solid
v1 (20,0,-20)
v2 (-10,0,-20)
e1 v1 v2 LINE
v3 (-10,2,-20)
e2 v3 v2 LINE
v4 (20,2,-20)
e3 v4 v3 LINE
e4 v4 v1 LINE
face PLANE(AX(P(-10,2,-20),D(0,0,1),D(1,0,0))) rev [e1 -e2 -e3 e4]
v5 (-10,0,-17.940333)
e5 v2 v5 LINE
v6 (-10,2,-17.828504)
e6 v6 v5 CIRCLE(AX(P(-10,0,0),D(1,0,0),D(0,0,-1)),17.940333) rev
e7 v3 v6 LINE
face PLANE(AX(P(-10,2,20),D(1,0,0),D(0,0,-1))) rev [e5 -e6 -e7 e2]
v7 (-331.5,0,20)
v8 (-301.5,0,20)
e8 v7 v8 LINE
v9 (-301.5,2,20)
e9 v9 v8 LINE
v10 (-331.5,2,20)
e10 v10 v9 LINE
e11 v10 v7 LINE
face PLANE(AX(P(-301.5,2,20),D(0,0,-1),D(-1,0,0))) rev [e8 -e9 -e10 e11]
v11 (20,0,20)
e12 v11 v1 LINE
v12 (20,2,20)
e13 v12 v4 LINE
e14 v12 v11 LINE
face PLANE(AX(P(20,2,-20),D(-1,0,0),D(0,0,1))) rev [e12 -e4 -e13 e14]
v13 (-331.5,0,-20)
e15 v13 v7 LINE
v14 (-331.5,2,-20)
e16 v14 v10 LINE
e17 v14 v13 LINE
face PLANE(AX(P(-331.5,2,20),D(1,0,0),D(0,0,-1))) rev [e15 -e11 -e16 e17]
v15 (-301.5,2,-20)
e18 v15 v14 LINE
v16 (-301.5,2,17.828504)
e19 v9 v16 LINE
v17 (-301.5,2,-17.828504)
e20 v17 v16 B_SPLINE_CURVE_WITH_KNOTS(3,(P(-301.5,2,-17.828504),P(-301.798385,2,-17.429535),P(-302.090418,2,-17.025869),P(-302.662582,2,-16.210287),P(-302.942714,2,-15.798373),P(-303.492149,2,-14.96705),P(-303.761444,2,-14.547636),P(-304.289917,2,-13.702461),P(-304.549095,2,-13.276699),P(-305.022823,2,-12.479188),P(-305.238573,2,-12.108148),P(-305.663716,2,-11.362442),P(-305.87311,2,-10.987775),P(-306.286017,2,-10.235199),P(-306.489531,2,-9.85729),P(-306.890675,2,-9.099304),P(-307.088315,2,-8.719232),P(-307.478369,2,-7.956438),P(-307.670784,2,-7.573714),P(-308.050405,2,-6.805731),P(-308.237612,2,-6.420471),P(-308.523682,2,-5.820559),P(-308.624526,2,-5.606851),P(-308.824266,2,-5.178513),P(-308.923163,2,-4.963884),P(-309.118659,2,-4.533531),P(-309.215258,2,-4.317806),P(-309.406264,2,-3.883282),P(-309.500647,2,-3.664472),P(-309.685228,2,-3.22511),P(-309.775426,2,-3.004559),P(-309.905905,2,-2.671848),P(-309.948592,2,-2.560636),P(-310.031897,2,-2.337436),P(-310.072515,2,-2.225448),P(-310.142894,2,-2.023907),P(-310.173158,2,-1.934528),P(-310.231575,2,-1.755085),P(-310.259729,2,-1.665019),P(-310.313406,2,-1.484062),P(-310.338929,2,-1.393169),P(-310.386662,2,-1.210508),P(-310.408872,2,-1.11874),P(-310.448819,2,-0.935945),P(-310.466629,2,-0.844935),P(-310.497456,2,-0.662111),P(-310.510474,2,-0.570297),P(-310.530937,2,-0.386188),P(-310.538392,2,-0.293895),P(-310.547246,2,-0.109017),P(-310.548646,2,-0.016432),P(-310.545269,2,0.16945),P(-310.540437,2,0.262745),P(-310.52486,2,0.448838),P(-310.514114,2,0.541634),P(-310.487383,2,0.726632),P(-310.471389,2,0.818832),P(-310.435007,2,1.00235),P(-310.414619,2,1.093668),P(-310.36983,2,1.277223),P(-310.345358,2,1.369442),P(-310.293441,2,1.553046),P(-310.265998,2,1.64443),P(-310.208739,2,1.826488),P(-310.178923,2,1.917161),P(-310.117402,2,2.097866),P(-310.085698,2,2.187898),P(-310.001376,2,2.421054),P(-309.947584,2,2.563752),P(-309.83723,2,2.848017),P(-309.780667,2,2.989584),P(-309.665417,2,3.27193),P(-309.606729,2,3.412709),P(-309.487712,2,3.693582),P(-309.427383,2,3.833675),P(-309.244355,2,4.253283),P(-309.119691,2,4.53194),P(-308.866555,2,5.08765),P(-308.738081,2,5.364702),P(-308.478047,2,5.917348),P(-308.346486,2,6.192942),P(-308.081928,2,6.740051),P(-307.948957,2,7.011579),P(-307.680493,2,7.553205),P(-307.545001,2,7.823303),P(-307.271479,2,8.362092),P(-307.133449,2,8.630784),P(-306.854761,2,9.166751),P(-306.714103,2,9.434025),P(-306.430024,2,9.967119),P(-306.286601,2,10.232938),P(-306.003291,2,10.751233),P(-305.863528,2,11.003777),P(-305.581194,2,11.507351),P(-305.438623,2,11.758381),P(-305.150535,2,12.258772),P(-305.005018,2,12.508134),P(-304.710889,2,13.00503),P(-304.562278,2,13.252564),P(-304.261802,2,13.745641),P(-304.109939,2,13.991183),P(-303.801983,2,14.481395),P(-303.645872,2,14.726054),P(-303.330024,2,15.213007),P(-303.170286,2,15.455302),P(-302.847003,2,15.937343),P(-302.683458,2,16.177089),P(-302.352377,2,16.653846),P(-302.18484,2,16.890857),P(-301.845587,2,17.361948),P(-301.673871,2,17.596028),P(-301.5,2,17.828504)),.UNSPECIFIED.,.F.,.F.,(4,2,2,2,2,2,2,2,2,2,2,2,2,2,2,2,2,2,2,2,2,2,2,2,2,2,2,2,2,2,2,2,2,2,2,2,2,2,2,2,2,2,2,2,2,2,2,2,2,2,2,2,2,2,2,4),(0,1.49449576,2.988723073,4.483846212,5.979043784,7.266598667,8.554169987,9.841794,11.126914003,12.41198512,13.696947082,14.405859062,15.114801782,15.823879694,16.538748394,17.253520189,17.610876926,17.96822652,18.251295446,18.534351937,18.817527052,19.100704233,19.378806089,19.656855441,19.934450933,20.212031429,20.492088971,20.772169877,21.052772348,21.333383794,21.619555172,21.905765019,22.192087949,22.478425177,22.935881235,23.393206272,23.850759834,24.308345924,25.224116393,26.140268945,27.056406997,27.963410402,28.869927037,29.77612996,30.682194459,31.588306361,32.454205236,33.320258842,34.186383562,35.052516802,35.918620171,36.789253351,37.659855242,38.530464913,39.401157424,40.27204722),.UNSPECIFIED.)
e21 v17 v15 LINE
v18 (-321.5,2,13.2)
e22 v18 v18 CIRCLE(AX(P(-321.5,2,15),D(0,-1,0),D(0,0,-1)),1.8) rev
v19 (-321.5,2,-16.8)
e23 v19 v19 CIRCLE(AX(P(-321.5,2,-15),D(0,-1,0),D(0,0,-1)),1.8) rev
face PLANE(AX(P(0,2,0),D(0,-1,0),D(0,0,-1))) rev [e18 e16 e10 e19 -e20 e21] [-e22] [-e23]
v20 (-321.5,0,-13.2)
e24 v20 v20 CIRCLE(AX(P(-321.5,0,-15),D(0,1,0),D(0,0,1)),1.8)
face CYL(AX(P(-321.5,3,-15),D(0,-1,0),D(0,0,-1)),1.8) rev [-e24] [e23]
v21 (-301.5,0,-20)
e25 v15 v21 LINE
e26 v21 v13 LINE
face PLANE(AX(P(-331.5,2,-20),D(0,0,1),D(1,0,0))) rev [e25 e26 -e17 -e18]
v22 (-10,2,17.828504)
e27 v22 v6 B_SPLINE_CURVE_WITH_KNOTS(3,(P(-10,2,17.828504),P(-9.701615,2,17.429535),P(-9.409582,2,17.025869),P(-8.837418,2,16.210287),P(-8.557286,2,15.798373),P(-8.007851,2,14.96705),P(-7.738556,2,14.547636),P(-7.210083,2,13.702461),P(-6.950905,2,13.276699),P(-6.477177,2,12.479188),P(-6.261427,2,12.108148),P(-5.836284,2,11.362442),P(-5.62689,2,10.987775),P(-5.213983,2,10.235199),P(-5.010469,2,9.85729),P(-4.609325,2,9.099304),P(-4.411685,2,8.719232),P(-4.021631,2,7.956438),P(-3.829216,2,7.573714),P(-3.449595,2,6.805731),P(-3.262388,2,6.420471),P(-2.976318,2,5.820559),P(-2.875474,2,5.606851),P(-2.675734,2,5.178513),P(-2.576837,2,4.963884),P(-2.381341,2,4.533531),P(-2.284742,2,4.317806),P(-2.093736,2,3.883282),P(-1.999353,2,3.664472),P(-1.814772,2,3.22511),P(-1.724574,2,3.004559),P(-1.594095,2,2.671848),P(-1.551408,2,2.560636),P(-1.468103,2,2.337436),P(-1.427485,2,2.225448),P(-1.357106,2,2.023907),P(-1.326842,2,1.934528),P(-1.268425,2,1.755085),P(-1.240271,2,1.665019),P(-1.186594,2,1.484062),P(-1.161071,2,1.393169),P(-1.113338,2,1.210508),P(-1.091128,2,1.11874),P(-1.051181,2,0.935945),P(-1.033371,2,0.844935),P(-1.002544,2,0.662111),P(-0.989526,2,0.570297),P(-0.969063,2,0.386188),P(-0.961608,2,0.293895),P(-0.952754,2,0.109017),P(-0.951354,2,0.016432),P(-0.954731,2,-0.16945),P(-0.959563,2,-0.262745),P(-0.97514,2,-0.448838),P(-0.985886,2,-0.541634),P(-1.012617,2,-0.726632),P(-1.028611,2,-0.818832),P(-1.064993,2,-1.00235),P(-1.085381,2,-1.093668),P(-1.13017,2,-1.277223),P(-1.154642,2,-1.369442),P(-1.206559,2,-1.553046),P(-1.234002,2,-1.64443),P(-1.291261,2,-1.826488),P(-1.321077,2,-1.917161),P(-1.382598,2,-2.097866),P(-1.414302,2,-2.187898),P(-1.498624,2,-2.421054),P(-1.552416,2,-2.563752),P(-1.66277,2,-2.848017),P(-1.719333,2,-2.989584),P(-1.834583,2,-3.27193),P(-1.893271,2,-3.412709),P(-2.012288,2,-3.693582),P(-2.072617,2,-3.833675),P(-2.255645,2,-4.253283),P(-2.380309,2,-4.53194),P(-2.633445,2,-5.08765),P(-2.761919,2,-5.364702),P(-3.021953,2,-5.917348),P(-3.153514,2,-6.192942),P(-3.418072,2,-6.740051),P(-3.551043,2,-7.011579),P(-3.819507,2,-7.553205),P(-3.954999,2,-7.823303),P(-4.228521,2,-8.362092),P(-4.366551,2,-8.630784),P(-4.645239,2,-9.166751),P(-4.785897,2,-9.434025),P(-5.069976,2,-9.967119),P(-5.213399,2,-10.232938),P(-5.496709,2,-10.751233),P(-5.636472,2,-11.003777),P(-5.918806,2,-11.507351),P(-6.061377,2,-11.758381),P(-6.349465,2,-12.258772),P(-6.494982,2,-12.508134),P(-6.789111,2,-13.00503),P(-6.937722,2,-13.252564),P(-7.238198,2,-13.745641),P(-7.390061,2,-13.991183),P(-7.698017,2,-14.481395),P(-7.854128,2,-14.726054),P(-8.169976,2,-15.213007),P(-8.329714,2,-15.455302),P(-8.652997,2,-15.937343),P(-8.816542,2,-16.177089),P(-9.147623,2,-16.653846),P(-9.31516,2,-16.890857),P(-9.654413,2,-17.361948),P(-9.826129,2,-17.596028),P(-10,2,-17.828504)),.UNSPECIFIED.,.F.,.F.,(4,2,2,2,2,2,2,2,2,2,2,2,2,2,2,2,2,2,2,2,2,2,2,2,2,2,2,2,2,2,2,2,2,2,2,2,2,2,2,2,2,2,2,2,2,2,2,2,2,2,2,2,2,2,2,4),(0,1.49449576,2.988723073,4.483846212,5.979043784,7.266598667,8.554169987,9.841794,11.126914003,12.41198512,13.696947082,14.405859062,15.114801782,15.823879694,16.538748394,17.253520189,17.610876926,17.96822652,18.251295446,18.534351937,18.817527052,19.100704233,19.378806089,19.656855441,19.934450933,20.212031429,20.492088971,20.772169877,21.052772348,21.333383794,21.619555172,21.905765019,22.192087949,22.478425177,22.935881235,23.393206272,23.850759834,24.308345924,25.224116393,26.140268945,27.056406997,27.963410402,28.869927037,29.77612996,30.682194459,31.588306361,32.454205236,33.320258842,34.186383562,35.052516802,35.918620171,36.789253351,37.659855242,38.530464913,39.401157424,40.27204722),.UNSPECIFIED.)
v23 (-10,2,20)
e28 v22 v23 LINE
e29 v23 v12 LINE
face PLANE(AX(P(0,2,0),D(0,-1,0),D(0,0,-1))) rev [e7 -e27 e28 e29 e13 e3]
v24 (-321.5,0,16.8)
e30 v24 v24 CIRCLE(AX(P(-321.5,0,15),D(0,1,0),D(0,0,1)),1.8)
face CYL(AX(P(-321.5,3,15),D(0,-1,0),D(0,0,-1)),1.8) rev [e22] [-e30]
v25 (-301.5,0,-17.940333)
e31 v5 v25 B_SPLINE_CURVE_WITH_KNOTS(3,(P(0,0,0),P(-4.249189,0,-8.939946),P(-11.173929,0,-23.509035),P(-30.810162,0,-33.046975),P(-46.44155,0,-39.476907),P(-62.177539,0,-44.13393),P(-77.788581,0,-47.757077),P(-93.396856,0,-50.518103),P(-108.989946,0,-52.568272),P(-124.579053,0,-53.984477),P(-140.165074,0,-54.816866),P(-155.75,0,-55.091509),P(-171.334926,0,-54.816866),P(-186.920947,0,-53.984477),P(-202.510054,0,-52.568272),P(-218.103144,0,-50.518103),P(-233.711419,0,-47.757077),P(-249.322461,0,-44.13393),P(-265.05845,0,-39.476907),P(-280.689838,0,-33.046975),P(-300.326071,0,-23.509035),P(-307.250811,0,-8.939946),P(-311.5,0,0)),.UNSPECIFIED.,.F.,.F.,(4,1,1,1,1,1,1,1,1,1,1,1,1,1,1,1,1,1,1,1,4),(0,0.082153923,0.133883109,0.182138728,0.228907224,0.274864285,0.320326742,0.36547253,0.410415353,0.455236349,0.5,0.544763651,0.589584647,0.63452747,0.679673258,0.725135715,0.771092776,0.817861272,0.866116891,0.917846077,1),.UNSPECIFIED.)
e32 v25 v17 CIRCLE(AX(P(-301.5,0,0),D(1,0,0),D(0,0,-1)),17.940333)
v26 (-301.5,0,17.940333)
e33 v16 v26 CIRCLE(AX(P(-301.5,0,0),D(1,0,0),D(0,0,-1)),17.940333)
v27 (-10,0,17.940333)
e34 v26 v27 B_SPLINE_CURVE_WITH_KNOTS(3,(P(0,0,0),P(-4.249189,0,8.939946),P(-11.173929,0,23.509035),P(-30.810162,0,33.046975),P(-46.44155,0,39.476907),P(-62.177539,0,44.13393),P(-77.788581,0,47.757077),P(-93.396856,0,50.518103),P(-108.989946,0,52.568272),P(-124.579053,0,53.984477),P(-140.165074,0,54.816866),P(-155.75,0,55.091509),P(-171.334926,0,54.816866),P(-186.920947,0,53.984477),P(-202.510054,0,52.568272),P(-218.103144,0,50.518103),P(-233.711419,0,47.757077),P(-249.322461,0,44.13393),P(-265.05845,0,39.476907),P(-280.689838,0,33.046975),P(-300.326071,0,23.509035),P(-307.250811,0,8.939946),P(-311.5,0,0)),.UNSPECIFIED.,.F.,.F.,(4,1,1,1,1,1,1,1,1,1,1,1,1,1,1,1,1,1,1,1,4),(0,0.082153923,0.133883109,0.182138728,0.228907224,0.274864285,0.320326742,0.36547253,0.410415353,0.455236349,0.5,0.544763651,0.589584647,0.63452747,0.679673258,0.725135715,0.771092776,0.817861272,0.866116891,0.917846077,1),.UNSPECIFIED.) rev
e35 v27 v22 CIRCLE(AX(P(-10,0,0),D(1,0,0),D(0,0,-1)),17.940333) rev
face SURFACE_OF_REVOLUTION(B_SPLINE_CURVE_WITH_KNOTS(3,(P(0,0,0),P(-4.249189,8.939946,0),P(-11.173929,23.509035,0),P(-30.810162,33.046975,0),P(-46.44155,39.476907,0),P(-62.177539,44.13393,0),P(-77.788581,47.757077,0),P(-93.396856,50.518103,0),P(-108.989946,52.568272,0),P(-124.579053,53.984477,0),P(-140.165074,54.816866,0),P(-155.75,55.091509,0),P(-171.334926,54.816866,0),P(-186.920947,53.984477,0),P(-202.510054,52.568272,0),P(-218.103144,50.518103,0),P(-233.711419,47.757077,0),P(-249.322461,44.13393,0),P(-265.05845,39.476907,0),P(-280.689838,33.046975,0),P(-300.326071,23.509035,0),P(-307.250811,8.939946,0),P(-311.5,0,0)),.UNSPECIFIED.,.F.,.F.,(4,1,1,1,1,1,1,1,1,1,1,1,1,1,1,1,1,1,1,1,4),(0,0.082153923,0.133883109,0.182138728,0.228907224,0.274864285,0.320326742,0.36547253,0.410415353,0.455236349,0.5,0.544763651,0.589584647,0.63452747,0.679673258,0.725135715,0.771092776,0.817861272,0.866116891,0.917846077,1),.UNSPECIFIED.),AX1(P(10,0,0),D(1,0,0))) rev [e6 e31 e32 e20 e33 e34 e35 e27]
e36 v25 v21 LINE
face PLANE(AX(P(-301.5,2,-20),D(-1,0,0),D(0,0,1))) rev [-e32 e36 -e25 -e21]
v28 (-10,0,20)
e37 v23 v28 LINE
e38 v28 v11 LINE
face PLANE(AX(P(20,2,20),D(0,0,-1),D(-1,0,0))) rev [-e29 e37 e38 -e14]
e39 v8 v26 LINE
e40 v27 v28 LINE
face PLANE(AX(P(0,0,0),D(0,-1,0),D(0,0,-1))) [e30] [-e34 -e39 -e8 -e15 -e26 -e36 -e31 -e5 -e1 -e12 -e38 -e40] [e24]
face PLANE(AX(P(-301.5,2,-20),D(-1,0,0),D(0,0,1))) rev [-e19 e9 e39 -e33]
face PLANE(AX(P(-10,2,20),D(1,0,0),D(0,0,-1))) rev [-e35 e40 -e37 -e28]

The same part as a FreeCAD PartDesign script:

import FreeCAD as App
import Part
import Sketcher
Q = App.Units.Quantity

doc = App.newDocument("Part")
params = doc.addObject("Spreadsheet::Sheet", "Params")
for row, (alias, value) in enumerate([
    ("revolution_angle", "360 deg"),
    ("sketch2_height", "160 mm"),
    ("sketch2_width", "411.5 mm"),
    ("pocket1_length", "80 mm"),
    ("sketch3_width", "30 mm"),
    ("sketch3_height", "40 mm"),
    ("pad1_length", "2 mm"),
    ("sketch4_diameter", "3.6 mm"),
    ("pocket2_length", "3 mm"),
], start=1):
    params.set(f"A{row}", alias)
    params.set(f"B{row}", "=" + value)
    params.setAlias(f"B{row}", alias)

body = doc.addObject("PartDesign::Body", "Body")

sketch1 = body.newObject("Sketcher::SketchObject", "Sketch")
sketch1.AttachmentSupport = (doc.getObject("XY_Plane"), [""])
sketch1.MapMode = "FlatFace"
sketch1.addGeometry(Part.LineSegment(App.Vector(-311.5, 0, 0), App.Vector(0, 0, 0)), False)
sketch1.addGeometry(Part.BSplineCurve([App.Vector(0, 0, 0), App.Vector(-4.249189, 8.939946, 0), App.Vector(-11.173929, 23.509035, 0), App.Vector(-30.810162, 33.046975, 0), App.Vector(-46.44155, 39.476907, 0), App.Vector(-62.177539, 44.13393, 0), App.Vector(-77.788581, 47.757077, 0), App.Vector(-93.396856, 50.518103, 0), App.Vector(-108.989946, 52.568272, 0), App.Vector(-124.579053, 53.984477, 0), App.Vector(-140.165074, 54.816866, 0), App.Vector(-155.75, 55.091509, 0), App.Vector(-171.334926, 54.816866, 0), App.Vector(-186.920947, 53.984477, 0), App.Vector(-202.510054, 52.568272, 0), App.Vector(-218.103144, 50.518103, 0), App.Vector(-233.711419, 47.757077, 0), App.Vector(-249.322461, 44.13393, 0), App.Vector(-265.05845, 39.476907, 0), App.Vector(-280.689838, 33.046975, 0), App.Vector(-300.326071, 23.509035, 0), App.Vector(-307.250811, 8.939946, 0), App.Vector(-311.5, 0, 0)], [4, 1, 1, 1, 1, 1, 1, 1, 1, 1, 1, 1, 1, 1, 1, 1, 1, 1, 1, 1, 4], [0, 0.082153923, 0.133883109, 0.182138728, 0.228907224, 0.274864285, 0.320326742, 0.36547253, 0.410415353, 0.455236349, 0.5, 0.544763651, 0.589584647, 0.63452747, 0.679673258, 0.725135715, 0.771092776, 0.817861272, 0.866116891, 0.917846077, 1], False, 3, [1, 1, 1, 1, 1, 1, 1, 1, 1, 1, 1, 1, 1, 1, 1, 1, 1, 1, 1, 1, 1, 1, 1], False), False)
sketch1.addConstraint(Sketcher.Constraint("Block", 1))
sketch1.addConstraint(Sketcher.Constraint("Coincident", 0, 1, 1, 2))
sketch1.addConstraint(Sketcher.Constraint("Coincident", 1, 1, 0, 2))
revolution = body.newObject("PartDesign::Revolution", "Revolution")
revolution.Profile = sketch1
revolution.ReferenceAxis = (sketch1, ["H_Axis"])
revolution.setExpression("Angle", "Params.revolution_angle")

sketch2 = body.newObject("Sketcher::SketchObject", "Sketch001")
sketch2.AttachmentSupport = (doc.getObject("XZ_Plane"), [""])
sketch2.MapMode = "FlatFace"
sketch2.addGeometry(Part.LineSegment(App.Vector(-362, -80, 0), App.Vector(-362, 80, 0)), False)
sketch2.addGeometry(Part.LineSegment(App.Vector(-362, 80, 0), App.Vector(50, 80, 0)), False)
sketch2.addGeometry(Part.LineSegment(App.Vector(50, 80, 0), App.Vector(50, -80, 0)), False)
sketch2.addGeometry(Part.LineSegment(App.Vector(50, -80, 0), App.Vector(-362, -80, 0)), False)
sketch2.addConstraint(Sketcher.Constraint("Coincident", 0, 2, 1, 1))
sketch2.addConstraint(Sketcher.Constraint("Coincident", 1, 2, 2, 1))
sketch2.addConstraint(Sketcher.Constraint("Coincident", 2, 2, 3, 1))
sketch2.addConstraint(Sketcher.Constraint("Coincident", 3, 2, 0, 1))
sketch2.addConstraint(Sketcher.Constraint("Vertical", 0))
sketch2.addConstraint(Sketcher.Constraint("Horizontal", 1))
sketch2.addConstraint(Sketcher.Constraint("Vertical", 2))
sketch2.addConstraint(Sketcher.Constraint("Horizontal", 3))
sketch2.addConstraint(Sketcher.Constraint("DistanceY", 0, 1, 0, 2, Q("160 mm")))
sketch2.addConstraint(Sketcher.Constraint("DistanceX", 1, 1, 1, 2, Q("411.5 mm")))
sketch2.addConstraint(Sketcher.Constraint("DistanceY", -1, 1, 0, 2, Q("80 mm")))
sketch2.addConstraint(Sketcher.Constraint("DistanceX", -1, 1, 1, 2, Q("50 mm")))
sketch2.setExpression("Constraints[8]", "Params.sketch2_height")
sketch2.setExpression("Constraints[9]", "Params.sketch2_width")
pocket1 = body.newObject("PartDesign::Pocket", "Pocket")
pocket1.Profile = sketch2
pocket1.setExpression("Length", "Params.pocket1_length")
pocket1.Reversed = True

sketch3 = body.newObject("Sketcher::SketchObject", "Sketch002")
sketch3.AttachmentSupport = (doc.getObject("XZ_Plane"), [""])
sketch3.MapMode = "FlatFace"
sketch3.addGeometry(Part.LineSegment(App.Vector(-332, -20, 0), App.Vector(-332, 20, 0)), False)
sketch3.addGeometry(Part.LineSegment(App.Vector(-332, 20, 0), App.Vector(-302, 20, 0)), False)
sketch3.addGeometry(Part.LineSegment(App.Vector(-302, 20, 0), App.Vector(-302, -20, 0)), False)
sketch3.addGeometry(Part.LineSegment(App.Vector(-302, -20, 0), App.Vector(-332, -20, 0)), False)
sketch3.addGeometry(Part.LineSegment(App.Vector(-10, -20, 0), App.Vector(-10, 20, 0)), False)
sketch3.addGeometry(Part.LineSegment(App.Vector(-10, 20, 0), App.Vector(20, 20, 0)), False)
sketch3.addGeometry(Part.LineSegment(App.Vector(20, 20, 0), App.Vector(20, -20, 0)), False)
sketch3.addGeometry(Part.LineSegment(App.Vector(20, -20, 0), App.Vector(-10, -20, 0)), False)
sketch3.addConstraint(Sketcher.Constraint("Coincident", 0, 2, 1, 1))
sketch3.addConstraint(Sketcher.Constraint("Coincident", 1, 2, 2, 1))
sketch3.addConstraint(Sketcher.Constraint("Coincident", 2, 2, 3, 1))
sketch3.addConstraint(Sketcher.Constraint("Coincident", 3, 2, 0, 1))
sketch3.addConstraint(Sketcher.Constraint("Coincident", 4, 2, 5, 1))
sketch3.addConstraint(Sketcher.Constraint("Coincident", 5, 2, 6, 1))
sketch3.addConstraint(Sketcher.Constraint("Coincident", 6, 2, 7, 1))
sketch3.addConstraint(Sketcher.Constraint("Coincident", 7, 2, 4, 1))
sketch3.addConstraint(Sketcher.Constraint("Vertical", 0))
sketch3.addConstraint(Sketcher.Constraint("Horizontal", 1))
sketch3.addConstraint(Sketcher.Constraint("Vertical", 2))
sketch3.addConstraint(Sketcher.Constraint("Horizontal", 3))
sketch3.addConstraint(Sketcher.Constraint("Vertical", 4))
sketch3.addConstraint(Sketcher.Constraint("Horizontal", 5))
sketch3.addConstraint(Sketcher.Constraint("Vertical", 6))
sketch3.addConstraint(Sketcher.Constraint("Horizontal", 7))
sketch3.addConstraint(Sketcher.Constraint("Horizontal", 1, 2, 4, 2))
sketch3.addConstraint(Sketcher.Constraint("Horizontal", 3, 2, 6, 2))
sketch3.addConstraint(Sketcher.Constraint("Equal", 3, 5))
sketch3.addConstraint(Sketcher.Constraint("DistanceX", 1, 1, 1, 2, Q("30 mm")))
sketch3.addConstraint(Sketcher.Constraint("DistanceY", 0, 1, 0, 2, Q("40 mm")))
sketch3.addConstraint(Sketcher.Constraint("DistanceY", -1, 1, 0, 2, Q("20 mm")))
sketch3.addConstraint(Sketcher.Constraint("DistanceX", 4, 2, -1, 1, Q("10 mm")))
sketch3.addConstraint(Sketcher.Constraint("DistanceX", 0, 2, -1, 1, Q("331.5 mm")))
sketch3.setExpression("Constraints[19]", "Params.sketch3_width")
sketch3.setExpression("Constraints[20]", "Params.sketch3_height")
pad1 = body.newObject("PartDesign::Pad", "Pad")
pad1.Profile = sketch3
pad1.setExpression("Length", "Params.pad1_length")
pad1.Reversed = True

sketch4 = body.newObject("Sketcher::SketchObject", "Sketch003")
sketch4.AttachmentSupport = (doc.getObject("XZ_Plane"), [""])
sketch4.MapMode = "FlatFace"
sketch4.addGeometry(Part.Circle(App.Vector(-321.5, 15, 0), App.Vector(0, 0, 1), 1.8), False)
sketch4.addGeometry(Part.Circle(App.Vector(-321.5, -15, 0), App.Vector(0, 0, 1), 1.8), False)
sketch4.addConstraint(Sketcher.Constraint("Equal", 0, 1))
sketch4.addConstraint(Sketcher.Constraint("Symmetric", 0, 3, 1, 3, -1))
sketch4.addConstraint(Sketcher.Constraint("Diameter", 0, Q("3.6 mm")))
sketch4.addConstraint(Sketcher.Constraint("DistanceY", -1, 1, 0, 3, Q("15 mm")))
sketch4.addConstraint(Sketcher.Constraint("DistanceX", 0, 3, -1, 1, Q("321.5 mm")))
sketch4.setExpression("Constraints[2]", "Params.sketch4_diameter")
pocket2 = body.newObject("PartDesign::Pocket", "Pocket001")
pocket2.Profile = sketch4
pocket2.setExpression("Length", "Params.pocket2_length")

doc.recompute()
